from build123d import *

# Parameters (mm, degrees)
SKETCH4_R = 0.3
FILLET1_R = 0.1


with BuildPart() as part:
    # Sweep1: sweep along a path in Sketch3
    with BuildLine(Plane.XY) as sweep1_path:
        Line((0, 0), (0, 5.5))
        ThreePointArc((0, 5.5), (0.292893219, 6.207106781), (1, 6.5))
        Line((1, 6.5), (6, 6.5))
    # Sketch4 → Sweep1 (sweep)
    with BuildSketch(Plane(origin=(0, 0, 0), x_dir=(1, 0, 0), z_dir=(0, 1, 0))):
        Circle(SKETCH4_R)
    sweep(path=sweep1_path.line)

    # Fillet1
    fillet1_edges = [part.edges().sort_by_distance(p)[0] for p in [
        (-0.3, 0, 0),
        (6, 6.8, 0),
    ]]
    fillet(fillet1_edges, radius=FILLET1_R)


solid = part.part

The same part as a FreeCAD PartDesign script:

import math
import FreeCAD as App
import Part
import Sketcher

V = App.Vector
Q = App.Units.Quantity


def edges_at(feature, points):
    """Names of the edges that pass closest to the given points."""
    edges = feature.Shape.Edges
    near = lambda p: min(range(len(edges)), key=lambda i: edges[i].distToShape(Part.Vertex(*p))[0])
    return sorted({f"Edge{near(p) + 1}" for p in points})

doc = App.newDocument("Part")
body = doc.addObject("PartDesign::Body", "Body")

# Sketch on XZ plane
sketch1 = doc.addObject("Sketcher::SketchObject", "Sketch")
body.addObject(sketch1)
sketch1.AttachmentSupport = (doc.XZ_Plane, [""])
sketch1.MapMode = "FlatFace"
sketch1.addGeometry(Part.Circle(V(0, 0, 0), V(0, 0, 1), 0.3), False)
sketch1.addConstraint([
    Sketcher.Constraint("Coincident", 0, 3, -1, 1),
    Sketcher.Constraint("Diameter", 0, Q("0.6 mm")),
])

# Sketch on XY plane
sketch2 = doc.addObject("Sketcher::SketchObject", "Sketch001")
body.addObject(sketch2)
sketch2.AttachmentSupport = (doc.XY_Plane, [""])
sketch2.MapMode = "FlatFace"
sketch2.addGeometry([
    Part.LineSegment(V(0, 0, 0), V(0, 5.5, 0)),
    Part.ArcOfCircle(Part.Circle(V(1, 5.5, 0), V(0, 0, 1), 1), math.radians(90), math.radians(180)),
    Part.LineSegment(V(1, 6.5, 0), V(6, 6.5, 0)),
], False)
sketch2.addConstraint([
    Sketcher.Constraint("Tangent", 0, 2, 1, 2),
    Sketcher.Constraint("Tangent", 1, 1, 2, 1),
    Sketcher.Constraint("Vertical", 0),
    Sketcher.Constraint("Horizontal", 2),
    Sketcher.Constraint("Coincident", 0, 1, -1, 1),
    Sketcher.Constraint("Radius", 1, Q("1 mm")),
    Sketcher.Constraint("DistanceX", 2, 1, 2, 2, Q("5 mm")),
    Sketcher.Constraint("DistanceY", 0, 1, 0, 2, Q("5.5 mm")),
])
doc.recompute()

additivepipe = doc.addObject("PartDesign::AdditivePipe", "AdditivePipe")
body.addObject(additivepipe)
additivepipe.Profile = sketch1
additivepipe.Spine = (sketch2, ["Edge1", "Edge2", "Edge3"])
doc.recompute()

fillet = doc.addObject("PartDesign::Fillet", "Fillet")
body.addObject(fillet)
fillet.Base = (additivepipe, edges_at(additivepipe, [(-0.3, 0, 0), (6, 6.8, 0)]))
fillet.Radius = 0.1

doc.recompute()
